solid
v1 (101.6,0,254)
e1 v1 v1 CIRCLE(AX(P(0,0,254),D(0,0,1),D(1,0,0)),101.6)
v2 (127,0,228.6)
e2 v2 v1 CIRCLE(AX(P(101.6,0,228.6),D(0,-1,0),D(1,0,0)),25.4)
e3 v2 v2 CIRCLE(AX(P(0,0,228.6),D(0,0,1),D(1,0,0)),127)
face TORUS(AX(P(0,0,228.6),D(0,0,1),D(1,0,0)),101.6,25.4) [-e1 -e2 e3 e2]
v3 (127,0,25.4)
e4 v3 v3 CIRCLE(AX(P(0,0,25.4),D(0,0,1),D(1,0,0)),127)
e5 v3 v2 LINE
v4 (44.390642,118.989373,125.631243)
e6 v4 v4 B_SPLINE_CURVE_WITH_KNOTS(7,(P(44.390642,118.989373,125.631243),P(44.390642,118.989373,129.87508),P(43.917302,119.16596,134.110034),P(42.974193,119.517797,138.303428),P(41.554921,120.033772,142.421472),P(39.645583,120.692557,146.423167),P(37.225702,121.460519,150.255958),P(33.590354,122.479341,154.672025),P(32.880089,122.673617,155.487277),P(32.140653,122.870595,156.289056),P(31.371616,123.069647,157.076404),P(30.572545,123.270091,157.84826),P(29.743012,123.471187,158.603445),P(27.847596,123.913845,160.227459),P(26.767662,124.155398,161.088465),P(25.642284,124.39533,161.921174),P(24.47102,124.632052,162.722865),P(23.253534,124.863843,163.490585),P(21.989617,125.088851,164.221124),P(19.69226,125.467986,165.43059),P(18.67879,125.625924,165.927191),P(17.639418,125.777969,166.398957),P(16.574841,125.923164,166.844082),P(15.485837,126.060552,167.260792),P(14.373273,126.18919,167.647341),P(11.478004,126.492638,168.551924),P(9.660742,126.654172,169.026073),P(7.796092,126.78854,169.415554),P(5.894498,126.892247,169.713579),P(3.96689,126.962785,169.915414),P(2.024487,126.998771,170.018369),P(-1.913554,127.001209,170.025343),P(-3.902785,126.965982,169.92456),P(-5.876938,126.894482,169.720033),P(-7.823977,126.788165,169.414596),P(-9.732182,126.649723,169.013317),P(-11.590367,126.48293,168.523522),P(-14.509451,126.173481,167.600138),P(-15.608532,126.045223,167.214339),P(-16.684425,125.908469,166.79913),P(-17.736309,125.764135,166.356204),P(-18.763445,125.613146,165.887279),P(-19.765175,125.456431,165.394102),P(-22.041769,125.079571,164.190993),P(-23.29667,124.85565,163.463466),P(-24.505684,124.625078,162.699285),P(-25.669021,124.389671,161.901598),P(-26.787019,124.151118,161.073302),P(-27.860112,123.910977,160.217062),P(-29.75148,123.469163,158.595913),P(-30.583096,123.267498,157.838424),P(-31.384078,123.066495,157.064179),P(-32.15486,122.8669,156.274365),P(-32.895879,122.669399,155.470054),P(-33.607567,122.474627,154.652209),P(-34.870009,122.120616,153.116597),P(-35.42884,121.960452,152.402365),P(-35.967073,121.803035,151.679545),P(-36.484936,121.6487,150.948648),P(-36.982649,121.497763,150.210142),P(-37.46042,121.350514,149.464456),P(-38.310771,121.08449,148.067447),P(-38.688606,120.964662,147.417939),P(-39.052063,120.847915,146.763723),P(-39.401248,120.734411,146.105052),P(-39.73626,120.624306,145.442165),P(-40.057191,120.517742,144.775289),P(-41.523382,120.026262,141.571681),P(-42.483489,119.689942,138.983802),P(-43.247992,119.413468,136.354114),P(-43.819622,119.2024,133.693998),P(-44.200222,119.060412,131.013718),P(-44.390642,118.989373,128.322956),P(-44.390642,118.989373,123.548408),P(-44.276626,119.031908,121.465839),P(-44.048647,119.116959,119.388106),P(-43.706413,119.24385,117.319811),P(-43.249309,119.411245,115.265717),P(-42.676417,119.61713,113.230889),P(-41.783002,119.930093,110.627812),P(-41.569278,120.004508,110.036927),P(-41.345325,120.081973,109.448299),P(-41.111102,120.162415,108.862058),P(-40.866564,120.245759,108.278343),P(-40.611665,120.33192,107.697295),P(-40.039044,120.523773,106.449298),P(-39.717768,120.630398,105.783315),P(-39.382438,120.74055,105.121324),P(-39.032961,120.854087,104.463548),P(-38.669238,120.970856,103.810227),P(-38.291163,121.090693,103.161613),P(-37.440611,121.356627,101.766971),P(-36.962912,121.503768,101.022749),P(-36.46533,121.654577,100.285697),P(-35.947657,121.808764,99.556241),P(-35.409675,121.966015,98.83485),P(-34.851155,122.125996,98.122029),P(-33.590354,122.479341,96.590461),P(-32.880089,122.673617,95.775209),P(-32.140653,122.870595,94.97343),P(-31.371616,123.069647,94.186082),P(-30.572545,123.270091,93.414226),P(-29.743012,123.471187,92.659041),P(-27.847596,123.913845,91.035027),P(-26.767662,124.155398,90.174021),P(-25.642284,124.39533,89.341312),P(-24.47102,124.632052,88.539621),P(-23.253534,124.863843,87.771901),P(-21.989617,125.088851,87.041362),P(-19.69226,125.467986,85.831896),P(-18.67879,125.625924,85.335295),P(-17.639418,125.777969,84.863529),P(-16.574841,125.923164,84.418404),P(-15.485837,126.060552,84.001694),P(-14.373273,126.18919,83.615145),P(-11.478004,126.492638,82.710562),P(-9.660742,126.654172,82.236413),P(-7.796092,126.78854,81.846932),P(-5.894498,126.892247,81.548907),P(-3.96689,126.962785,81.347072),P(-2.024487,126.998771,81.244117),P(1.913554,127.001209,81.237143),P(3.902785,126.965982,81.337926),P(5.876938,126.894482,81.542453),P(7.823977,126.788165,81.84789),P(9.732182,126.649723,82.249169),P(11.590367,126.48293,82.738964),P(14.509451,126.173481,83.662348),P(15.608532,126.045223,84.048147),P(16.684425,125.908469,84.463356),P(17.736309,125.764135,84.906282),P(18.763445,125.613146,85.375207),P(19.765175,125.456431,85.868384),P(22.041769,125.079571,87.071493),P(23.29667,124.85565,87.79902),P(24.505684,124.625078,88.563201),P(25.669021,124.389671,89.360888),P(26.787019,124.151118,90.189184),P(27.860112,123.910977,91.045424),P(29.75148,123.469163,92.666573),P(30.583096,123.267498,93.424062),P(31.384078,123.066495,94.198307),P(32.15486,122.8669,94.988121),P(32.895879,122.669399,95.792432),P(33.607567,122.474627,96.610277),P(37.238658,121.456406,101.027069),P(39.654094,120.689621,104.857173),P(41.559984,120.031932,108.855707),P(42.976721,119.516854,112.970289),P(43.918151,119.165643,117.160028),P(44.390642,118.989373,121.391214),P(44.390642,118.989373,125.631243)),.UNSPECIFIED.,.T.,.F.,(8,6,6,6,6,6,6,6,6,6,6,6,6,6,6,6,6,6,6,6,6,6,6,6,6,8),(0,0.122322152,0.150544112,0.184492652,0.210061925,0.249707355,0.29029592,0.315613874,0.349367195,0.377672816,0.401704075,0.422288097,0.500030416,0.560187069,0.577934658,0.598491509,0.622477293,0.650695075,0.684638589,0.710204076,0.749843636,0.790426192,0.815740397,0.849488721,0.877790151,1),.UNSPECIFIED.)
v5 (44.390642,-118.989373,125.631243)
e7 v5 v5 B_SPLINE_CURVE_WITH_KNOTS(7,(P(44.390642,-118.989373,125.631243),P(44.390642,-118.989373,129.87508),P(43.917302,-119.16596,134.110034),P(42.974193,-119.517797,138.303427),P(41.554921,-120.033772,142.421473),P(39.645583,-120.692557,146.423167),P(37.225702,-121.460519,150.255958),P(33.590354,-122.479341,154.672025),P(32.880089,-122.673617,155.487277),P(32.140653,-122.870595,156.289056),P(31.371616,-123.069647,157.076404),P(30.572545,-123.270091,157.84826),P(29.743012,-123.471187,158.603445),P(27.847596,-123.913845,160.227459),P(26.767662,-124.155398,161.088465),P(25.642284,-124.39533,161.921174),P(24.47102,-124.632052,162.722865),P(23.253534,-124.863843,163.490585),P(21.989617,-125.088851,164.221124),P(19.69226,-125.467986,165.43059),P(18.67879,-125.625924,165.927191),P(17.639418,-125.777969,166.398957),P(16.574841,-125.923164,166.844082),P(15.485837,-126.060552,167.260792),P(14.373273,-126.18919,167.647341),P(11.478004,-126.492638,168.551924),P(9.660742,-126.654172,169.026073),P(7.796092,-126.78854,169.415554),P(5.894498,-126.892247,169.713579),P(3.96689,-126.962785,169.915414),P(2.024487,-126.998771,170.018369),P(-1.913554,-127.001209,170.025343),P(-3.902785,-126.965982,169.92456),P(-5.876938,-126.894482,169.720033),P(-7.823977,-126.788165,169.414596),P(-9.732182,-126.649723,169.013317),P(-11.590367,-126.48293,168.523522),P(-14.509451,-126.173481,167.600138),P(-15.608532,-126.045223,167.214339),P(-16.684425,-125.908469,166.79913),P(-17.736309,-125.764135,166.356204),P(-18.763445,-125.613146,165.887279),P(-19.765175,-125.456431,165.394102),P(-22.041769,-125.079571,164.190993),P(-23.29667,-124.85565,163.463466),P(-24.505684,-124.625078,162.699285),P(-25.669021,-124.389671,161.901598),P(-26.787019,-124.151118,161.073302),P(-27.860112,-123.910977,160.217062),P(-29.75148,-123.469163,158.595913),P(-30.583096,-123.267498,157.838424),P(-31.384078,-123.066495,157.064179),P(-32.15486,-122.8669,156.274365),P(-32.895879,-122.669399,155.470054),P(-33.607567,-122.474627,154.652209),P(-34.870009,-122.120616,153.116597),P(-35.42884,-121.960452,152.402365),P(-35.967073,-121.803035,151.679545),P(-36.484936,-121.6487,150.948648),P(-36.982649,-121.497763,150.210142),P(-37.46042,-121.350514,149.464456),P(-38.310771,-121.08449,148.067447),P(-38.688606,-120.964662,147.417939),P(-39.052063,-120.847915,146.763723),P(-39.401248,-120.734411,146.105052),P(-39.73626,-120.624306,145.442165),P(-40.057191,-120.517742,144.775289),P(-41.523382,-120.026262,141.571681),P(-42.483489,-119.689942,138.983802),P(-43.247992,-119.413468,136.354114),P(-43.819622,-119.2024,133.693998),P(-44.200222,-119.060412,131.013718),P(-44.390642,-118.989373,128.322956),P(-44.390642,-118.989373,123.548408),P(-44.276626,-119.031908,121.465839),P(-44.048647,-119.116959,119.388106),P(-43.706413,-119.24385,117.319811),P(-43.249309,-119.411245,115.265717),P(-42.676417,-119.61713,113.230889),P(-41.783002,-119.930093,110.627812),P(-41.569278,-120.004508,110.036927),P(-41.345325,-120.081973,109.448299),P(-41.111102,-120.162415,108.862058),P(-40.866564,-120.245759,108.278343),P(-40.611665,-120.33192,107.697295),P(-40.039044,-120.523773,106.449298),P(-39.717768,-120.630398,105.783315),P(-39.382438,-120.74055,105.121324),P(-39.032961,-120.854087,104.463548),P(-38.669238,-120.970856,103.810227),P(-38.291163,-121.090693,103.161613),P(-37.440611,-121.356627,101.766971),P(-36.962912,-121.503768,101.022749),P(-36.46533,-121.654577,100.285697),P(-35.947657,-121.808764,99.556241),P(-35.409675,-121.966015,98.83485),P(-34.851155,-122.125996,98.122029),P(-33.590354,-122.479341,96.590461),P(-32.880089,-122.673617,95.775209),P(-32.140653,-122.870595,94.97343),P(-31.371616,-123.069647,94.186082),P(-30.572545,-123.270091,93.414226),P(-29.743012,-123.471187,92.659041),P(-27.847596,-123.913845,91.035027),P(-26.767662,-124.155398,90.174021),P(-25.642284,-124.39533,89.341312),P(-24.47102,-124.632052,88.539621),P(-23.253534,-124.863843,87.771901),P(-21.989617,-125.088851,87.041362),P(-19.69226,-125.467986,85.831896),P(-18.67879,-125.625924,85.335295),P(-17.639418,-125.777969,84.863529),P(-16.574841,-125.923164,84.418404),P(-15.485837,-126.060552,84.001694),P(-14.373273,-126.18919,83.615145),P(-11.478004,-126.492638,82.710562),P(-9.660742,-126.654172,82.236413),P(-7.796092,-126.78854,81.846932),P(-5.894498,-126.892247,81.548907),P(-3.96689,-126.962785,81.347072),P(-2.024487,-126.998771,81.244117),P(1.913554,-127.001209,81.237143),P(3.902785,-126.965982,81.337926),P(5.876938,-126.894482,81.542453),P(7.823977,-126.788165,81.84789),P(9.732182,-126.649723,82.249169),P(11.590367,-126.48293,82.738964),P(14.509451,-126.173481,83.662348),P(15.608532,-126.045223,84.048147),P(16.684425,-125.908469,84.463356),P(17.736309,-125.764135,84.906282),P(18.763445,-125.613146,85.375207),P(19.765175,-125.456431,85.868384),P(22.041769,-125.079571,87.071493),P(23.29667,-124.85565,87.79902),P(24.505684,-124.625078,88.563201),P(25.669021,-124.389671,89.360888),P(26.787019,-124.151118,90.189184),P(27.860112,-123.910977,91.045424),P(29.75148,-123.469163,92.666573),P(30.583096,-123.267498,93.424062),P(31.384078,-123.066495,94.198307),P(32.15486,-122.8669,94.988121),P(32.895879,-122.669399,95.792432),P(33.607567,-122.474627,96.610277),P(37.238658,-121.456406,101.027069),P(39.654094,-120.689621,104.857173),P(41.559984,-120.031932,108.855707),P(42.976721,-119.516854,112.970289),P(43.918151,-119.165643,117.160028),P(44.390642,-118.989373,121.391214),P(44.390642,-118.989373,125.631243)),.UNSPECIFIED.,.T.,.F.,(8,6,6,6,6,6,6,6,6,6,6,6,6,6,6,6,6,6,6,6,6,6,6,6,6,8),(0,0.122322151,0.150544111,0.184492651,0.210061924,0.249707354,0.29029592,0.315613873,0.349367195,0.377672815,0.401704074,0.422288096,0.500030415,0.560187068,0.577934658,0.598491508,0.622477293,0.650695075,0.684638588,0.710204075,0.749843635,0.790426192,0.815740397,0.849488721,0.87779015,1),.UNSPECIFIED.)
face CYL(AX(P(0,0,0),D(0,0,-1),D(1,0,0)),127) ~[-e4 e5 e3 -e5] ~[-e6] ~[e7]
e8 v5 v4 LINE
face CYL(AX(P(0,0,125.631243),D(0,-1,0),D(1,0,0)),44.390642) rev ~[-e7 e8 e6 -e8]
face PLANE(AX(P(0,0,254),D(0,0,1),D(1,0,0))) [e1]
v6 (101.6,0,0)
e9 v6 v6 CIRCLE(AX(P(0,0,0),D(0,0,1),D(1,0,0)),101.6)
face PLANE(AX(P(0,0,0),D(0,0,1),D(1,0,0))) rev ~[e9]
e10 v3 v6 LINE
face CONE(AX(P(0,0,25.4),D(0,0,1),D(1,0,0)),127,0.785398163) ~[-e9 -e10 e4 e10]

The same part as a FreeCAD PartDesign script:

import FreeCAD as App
import Part
import Sketcher
Q = App.Units.Quantity


def edges_at(feature, points):
    """Names of the edges that pass closest to the given points."""
    edges = feature.Shape.Edges
    near = lambda p: min(range(len(edges)), key=lambda i: edges[i].distToShape(Part.Vertex(*p))[0])
    return sorted({f"Edge{near(p) + 1}" for p in points})

doc = App.newDocument("Part")
body = doc.addObject("PartDesign::Body", "Body")

sketch1 = body.newObject("Sketcher::SketchObject", "Sketch")
sketch1.AttachmentSupport = (doc.getObject("XY_Plane"), [""])
sketch1.MapMode = "FlatFace"
sketch1.addGeometry(Part.Circle(App.Vector(0, 0, 0), App.Vector(0, 0, 1), 127), False)
sketch1.addConstraint(Sketcher.Constraint("Coincident", 0, 3, -1, 1))
sketch1.addConstraint(Sketcher.Constraint("Diameter", 0, Q("10 in")))
pad1 = body.newObject("PartDesign::Pad", "Pad")
pad1.Profile = sketch1
pad1.Length = Q("10 in")
doc.recompute()

fillet = body.newObject("PartDesign::Fillet", "Fillet")
fillet.Base = (pad1, edges_at(pad1, [(-127, 0, 254)]))
fillet.Radius = Q("1 in")
doc.recompute()

chamfer = body.newObject("PartDesign::Chamfer", "Chamfer")
chamfer.Base = (fillet, edges_at(fillet, [(-127, 0, 0)]))
chamfer.Size = Q("1 in")

sketch2 = body.newObject("Sketcher::SketchObject", "Sketch001")
sketch2.AttachmentSupport = (doc.getObject("XZ_Plane"), [""])
sketch2.MapMode = "FlatFace"
sketch2.addGeometry(Part.Circle(App.Vector(0, 125.631243, 0), App.Vector(0, 0, 1), 44.390642), False)
sketch2.addConstraint(Sketcher.Constraint("PointOnObject", 0, 3, -2))
sketch2.addConstraint(Sketcher.Constraint("Diameter", 0, Q("88.781283 mm")))
sketch2.addConstraint(Sketcher.Constraint("DistanceY", -1, 1, 0, 3, Q("125.631243 mm")))
pocket1 = body.newObject("PartDesign::Pocket", "Pocket")
pocket1.Profile = sketch2
pocket1.Type = "ThroughAll"
pocket1.Midplane = True

doc.recompute()
